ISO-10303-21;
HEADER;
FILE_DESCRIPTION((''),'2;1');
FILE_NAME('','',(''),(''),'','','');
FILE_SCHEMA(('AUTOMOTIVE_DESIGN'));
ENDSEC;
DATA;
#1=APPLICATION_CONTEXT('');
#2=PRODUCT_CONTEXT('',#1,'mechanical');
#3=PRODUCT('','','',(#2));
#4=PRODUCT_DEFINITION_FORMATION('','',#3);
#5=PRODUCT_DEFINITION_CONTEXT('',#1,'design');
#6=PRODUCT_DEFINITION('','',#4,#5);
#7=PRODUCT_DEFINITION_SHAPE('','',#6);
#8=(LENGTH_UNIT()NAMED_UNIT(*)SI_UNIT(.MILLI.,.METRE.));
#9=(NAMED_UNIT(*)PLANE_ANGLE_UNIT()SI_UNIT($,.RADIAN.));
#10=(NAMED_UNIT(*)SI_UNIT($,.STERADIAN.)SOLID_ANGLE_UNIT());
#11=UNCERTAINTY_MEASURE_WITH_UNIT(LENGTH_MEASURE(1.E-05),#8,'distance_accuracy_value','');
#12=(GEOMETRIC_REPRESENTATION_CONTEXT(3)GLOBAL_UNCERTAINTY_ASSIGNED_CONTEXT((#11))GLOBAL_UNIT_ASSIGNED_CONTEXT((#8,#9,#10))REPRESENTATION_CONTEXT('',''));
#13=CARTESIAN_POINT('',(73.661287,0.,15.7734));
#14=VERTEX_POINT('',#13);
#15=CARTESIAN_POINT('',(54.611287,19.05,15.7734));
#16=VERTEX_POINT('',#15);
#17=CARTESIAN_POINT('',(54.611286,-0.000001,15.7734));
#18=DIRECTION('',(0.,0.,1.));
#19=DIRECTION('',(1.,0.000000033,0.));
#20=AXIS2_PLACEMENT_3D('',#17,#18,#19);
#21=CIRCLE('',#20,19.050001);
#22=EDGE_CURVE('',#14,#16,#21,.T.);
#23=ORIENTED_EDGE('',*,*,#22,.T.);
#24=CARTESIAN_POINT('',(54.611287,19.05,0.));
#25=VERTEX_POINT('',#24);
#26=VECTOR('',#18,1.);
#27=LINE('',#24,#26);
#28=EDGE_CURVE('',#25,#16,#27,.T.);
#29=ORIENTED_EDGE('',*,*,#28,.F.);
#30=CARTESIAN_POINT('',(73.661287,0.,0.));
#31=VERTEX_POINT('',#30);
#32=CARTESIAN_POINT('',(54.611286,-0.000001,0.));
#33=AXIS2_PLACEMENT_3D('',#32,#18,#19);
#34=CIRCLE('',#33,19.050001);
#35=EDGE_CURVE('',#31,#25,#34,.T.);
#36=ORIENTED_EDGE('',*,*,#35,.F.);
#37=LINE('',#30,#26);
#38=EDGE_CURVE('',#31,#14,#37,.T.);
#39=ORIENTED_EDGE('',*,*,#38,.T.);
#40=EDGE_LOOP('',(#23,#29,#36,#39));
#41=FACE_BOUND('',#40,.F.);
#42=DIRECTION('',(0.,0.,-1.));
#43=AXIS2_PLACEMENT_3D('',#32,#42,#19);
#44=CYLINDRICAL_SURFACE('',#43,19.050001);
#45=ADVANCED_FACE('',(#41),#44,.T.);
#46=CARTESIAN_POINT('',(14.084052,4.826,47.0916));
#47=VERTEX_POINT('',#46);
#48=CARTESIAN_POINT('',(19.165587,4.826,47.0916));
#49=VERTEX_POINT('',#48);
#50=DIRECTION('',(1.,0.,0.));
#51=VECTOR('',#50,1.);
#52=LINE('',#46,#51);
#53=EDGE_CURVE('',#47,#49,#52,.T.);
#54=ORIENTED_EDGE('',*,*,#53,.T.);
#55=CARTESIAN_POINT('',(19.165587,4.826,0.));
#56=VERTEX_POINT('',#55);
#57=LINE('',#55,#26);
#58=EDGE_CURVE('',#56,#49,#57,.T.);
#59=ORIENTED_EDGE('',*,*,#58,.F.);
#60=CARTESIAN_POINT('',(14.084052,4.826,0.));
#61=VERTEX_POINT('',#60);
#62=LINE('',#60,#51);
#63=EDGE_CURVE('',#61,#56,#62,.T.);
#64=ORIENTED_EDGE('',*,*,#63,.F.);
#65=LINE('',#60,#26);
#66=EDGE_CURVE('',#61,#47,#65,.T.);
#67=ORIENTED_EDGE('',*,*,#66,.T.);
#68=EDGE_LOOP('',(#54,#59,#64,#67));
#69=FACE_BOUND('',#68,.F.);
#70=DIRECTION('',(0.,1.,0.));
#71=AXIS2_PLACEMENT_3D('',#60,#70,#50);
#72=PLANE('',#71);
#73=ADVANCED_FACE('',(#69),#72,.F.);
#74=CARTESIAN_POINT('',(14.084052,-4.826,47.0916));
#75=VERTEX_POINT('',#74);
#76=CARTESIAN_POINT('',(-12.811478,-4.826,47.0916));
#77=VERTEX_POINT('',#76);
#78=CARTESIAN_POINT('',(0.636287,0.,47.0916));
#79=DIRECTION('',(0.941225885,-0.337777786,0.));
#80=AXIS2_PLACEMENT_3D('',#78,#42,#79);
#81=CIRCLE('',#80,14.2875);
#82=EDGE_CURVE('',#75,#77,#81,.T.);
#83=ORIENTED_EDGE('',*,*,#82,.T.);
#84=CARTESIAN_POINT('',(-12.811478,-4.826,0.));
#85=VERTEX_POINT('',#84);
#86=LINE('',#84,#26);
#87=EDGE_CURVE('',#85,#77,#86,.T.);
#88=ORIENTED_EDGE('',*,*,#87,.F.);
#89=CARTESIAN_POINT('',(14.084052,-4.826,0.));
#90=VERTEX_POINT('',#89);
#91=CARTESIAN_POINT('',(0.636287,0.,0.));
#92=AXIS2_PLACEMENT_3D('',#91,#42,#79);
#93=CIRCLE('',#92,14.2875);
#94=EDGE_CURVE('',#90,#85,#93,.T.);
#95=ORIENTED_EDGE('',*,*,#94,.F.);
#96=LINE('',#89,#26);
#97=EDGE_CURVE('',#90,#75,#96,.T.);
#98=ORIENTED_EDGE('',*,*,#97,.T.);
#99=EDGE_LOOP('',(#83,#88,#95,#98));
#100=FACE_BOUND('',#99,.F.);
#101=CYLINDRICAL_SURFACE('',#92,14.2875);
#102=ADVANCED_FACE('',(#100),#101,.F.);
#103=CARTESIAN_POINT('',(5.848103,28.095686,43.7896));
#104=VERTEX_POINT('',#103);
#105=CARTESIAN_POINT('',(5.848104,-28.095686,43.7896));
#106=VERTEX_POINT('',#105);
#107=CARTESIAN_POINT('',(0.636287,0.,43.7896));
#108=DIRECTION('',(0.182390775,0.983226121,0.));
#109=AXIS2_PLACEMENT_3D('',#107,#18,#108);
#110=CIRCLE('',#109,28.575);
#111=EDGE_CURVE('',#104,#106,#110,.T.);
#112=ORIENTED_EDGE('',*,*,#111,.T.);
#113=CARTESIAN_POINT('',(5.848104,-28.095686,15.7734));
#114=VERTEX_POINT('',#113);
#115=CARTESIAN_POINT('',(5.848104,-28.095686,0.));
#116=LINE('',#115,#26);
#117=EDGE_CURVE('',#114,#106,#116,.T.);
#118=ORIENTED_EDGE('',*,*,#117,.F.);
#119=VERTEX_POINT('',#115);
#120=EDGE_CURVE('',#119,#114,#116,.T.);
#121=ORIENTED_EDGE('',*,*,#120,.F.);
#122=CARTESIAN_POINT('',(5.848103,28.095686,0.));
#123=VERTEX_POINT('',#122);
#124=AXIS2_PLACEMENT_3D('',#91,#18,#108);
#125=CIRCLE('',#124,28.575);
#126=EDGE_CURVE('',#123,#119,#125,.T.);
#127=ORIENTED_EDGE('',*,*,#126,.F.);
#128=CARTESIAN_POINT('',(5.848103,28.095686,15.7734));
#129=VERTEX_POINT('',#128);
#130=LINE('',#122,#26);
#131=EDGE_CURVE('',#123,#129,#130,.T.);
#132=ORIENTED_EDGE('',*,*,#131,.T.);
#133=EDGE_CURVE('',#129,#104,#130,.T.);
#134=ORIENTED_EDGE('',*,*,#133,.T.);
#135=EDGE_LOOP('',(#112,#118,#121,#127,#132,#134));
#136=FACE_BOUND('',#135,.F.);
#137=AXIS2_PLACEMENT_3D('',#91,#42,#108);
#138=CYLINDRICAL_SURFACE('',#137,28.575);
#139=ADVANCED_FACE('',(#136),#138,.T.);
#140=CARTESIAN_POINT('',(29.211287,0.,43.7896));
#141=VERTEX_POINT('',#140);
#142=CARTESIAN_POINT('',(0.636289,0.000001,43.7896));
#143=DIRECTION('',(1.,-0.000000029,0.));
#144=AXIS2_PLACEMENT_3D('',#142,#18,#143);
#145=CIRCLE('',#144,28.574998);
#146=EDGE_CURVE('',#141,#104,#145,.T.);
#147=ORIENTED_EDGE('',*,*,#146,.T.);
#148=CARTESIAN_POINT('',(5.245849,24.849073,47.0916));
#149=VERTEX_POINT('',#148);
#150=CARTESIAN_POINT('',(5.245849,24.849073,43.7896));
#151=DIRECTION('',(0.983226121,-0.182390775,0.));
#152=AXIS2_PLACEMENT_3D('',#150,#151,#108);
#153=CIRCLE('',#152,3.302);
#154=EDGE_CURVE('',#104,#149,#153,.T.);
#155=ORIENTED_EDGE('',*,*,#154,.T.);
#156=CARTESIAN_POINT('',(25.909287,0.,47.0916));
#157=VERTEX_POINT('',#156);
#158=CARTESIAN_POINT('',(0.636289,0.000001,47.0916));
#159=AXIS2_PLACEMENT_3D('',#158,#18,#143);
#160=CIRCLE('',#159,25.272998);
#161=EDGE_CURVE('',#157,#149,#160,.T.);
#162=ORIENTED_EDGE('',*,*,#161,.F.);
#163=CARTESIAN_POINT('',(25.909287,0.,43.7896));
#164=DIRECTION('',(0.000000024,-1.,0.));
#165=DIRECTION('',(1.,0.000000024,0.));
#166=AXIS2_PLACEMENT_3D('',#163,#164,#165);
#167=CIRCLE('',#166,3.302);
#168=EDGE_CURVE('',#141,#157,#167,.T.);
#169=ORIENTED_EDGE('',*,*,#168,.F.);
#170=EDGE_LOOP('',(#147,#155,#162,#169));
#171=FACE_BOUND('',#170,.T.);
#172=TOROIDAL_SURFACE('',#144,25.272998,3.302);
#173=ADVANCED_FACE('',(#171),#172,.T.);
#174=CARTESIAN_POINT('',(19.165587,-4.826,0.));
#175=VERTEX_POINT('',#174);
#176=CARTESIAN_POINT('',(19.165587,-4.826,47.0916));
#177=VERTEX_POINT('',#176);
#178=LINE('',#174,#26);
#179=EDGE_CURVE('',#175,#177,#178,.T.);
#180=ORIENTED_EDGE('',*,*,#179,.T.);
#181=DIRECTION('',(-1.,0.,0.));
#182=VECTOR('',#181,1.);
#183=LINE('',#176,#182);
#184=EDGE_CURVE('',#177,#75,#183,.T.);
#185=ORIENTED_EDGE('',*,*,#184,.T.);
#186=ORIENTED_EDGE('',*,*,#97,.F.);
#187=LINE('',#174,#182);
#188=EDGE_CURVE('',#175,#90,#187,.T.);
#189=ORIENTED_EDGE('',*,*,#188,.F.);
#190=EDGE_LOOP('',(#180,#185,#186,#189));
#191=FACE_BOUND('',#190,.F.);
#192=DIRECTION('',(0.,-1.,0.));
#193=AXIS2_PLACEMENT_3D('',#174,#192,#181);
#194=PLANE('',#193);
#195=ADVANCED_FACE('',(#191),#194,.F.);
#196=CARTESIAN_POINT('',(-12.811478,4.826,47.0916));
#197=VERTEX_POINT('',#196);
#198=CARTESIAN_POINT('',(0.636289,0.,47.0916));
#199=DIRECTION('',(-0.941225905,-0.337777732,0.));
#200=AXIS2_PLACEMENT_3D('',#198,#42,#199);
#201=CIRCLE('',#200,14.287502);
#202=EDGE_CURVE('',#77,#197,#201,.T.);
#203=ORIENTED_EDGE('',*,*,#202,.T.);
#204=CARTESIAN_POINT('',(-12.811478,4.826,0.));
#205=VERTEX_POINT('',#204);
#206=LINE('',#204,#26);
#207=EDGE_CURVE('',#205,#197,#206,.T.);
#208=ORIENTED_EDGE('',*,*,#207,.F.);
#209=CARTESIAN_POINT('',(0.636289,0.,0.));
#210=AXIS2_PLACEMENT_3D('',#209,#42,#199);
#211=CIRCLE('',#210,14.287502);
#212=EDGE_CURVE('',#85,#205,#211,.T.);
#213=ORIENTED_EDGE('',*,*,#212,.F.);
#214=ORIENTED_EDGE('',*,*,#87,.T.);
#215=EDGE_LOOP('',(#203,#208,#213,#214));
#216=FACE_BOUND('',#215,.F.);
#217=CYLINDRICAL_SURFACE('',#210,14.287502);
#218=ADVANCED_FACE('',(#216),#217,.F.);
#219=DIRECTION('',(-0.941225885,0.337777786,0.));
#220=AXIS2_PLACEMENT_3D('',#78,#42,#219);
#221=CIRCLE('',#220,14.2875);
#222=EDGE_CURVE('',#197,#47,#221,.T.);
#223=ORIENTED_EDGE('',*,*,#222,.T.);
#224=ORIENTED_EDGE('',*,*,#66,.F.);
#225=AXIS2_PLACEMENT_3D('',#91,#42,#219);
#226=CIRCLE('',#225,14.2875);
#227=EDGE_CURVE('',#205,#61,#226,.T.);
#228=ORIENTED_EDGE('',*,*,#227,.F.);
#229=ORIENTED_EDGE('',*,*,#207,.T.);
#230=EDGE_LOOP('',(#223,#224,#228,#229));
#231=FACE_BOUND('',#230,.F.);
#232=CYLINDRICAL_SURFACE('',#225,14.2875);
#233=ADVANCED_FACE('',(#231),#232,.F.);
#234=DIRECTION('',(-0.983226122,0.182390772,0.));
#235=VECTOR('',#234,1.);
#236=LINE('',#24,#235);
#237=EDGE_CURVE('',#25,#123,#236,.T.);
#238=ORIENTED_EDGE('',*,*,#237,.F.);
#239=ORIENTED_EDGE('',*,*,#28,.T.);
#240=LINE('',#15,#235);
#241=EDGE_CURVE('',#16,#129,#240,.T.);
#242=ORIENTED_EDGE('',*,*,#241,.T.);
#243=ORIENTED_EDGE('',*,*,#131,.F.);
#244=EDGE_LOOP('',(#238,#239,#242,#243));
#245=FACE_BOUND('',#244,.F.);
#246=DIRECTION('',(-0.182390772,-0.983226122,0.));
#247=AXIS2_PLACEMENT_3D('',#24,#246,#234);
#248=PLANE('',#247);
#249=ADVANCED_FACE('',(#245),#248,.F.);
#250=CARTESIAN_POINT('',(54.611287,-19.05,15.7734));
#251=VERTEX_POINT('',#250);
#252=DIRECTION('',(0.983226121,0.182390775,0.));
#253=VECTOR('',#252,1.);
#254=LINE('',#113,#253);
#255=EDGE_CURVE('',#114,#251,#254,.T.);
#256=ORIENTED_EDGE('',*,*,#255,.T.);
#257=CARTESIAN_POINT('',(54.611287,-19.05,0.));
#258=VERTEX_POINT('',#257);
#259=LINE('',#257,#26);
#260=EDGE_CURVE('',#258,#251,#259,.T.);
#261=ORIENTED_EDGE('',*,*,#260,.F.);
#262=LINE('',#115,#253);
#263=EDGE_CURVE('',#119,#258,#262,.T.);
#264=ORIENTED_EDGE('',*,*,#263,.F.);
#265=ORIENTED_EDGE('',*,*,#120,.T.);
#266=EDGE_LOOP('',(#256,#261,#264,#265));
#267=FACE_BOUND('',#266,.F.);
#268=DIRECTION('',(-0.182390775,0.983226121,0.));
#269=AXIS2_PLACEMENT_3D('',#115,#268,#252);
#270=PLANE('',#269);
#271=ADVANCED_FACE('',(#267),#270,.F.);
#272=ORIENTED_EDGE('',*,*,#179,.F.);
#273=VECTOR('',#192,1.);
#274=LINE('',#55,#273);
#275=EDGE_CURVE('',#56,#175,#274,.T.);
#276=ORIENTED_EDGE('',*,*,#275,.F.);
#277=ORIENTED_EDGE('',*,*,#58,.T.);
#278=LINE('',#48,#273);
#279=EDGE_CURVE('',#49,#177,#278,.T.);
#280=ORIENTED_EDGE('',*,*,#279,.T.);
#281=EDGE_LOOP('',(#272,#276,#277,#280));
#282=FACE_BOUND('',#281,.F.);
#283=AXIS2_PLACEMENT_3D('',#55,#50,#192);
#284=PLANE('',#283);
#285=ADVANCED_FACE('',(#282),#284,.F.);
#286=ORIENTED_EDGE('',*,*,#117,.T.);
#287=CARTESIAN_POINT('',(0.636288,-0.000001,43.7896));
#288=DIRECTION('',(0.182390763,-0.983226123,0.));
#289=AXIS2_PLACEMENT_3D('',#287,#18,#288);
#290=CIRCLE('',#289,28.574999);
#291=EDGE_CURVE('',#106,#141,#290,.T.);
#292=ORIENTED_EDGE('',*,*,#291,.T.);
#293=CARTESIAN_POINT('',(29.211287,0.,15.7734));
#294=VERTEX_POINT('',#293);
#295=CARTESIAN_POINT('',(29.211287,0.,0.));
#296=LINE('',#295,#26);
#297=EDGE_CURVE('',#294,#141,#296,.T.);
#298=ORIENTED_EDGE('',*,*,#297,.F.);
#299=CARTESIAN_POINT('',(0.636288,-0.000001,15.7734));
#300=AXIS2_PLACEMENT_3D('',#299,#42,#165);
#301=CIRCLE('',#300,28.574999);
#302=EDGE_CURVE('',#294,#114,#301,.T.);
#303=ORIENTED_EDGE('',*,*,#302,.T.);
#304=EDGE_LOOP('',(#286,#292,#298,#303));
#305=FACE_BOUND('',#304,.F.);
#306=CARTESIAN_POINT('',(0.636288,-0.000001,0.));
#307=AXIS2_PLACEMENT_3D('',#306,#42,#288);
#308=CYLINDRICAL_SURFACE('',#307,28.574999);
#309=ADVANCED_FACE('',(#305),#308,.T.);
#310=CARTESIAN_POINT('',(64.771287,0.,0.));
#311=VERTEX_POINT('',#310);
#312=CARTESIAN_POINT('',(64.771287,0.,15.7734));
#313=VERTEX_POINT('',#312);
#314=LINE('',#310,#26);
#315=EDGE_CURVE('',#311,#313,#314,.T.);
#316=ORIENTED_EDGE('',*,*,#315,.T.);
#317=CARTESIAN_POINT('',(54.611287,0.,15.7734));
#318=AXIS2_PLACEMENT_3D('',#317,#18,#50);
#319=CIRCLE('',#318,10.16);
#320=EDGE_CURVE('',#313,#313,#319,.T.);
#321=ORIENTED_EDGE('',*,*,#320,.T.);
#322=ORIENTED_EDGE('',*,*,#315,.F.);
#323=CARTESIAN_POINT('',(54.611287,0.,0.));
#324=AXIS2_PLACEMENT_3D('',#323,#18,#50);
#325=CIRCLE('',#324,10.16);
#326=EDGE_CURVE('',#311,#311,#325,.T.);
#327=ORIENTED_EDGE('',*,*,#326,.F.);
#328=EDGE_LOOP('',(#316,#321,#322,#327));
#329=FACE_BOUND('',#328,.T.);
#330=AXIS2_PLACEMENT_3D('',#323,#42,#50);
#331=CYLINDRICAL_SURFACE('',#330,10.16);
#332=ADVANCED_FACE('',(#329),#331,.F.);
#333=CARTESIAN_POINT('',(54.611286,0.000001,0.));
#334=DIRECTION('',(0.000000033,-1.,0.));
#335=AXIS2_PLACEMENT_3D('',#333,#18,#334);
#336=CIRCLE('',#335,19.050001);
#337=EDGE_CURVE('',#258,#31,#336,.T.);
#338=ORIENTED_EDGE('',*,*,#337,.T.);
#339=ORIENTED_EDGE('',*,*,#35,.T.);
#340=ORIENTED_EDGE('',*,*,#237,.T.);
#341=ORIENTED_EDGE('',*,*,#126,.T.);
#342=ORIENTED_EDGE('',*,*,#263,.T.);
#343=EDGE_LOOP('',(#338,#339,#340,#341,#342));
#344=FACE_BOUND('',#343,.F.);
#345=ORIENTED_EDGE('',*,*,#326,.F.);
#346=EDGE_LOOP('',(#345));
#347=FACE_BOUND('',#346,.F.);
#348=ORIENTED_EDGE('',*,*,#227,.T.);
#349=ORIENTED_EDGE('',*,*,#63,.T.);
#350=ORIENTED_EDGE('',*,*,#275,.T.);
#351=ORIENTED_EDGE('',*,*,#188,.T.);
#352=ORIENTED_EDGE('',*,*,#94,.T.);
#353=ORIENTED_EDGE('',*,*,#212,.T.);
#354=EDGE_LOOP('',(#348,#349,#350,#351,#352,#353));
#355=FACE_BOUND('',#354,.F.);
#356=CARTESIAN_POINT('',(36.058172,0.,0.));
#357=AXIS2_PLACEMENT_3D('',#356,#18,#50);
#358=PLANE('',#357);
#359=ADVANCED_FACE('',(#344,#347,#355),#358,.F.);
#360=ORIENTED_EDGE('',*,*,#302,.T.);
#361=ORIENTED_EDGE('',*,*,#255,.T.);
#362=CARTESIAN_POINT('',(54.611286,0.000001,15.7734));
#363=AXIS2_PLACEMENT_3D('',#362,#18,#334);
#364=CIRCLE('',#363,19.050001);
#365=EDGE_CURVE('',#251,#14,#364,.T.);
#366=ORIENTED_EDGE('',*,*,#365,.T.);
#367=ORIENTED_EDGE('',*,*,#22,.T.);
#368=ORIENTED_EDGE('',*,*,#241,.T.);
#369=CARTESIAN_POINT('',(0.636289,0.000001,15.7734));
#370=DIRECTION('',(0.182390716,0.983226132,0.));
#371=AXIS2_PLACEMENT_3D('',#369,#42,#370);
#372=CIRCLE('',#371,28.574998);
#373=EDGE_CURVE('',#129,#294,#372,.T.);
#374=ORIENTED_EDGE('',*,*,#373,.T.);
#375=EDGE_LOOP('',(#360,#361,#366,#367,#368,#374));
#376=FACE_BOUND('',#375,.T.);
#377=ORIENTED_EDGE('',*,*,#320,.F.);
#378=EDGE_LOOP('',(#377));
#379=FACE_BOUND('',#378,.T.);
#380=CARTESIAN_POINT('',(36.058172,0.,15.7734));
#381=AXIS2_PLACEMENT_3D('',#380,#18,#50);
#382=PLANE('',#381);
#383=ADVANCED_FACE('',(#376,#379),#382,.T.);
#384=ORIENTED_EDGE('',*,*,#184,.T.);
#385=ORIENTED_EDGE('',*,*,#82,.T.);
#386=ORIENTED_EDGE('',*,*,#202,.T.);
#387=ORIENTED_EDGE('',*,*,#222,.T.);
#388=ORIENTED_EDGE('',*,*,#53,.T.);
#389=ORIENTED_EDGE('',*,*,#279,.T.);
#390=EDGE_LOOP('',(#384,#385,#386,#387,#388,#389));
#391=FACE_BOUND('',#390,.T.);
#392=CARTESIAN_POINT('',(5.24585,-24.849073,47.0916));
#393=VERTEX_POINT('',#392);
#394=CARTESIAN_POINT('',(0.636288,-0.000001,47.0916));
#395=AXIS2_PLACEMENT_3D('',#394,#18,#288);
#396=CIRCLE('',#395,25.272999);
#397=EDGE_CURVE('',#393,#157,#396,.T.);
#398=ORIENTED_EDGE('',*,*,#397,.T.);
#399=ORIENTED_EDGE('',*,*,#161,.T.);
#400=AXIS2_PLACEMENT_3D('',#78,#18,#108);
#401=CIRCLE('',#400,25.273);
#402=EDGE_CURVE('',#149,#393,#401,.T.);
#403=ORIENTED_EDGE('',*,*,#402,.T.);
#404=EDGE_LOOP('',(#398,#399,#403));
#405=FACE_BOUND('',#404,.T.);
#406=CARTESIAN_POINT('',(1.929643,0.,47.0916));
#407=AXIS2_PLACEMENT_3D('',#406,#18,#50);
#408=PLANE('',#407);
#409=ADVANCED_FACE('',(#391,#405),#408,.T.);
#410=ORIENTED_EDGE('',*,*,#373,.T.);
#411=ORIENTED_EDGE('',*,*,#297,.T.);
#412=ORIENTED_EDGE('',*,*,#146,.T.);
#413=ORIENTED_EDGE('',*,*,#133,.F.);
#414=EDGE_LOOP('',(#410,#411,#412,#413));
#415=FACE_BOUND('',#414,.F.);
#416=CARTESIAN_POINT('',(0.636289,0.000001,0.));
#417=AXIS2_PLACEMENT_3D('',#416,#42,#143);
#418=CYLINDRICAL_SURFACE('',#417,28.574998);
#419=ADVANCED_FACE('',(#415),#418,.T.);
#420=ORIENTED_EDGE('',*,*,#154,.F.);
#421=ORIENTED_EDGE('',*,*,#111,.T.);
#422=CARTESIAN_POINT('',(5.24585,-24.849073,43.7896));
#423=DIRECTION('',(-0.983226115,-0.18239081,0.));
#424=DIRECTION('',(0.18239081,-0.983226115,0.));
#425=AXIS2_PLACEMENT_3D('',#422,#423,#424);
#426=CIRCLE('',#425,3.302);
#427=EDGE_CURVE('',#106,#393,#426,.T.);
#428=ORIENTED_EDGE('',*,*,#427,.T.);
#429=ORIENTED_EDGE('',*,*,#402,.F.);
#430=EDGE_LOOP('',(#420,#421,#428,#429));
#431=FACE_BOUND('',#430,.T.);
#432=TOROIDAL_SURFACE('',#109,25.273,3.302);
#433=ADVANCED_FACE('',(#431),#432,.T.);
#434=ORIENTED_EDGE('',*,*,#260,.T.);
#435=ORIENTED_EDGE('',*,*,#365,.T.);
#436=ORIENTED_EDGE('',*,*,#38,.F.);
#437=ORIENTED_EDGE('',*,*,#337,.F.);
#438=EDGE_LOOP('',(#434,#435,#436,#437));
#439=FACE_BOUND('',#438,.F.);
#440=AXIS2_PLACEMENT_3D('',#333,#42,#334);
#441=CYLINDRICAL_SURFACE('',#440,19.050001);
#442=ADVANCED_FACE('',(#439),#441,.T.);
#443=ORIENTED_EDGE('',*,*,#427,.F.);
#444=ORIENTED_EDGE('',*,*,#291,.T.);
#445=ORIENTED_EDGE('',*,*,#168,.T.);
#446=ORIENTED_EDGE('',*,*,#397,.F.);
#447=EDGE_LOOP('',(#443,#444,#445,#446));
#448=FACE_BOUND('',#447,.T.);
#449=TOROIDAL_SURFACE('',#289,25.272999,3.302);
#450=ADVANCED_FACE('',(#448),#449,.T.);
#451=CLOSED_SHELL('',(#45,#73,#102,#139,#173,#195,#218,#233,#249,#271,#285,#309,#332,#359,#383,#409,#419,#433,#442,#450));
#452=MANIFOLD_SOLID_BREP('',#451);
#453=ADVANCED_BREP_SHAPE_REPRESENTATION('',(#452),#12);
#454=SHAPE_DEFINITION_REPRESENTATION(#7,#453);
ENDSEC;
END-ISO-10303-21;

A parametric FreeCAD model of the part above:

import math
import FreeCAD as App
import Part
import Sketcher
from FreeCAD import Vector
Q = App.Units.Quantity


def edges_at(feature, points):
    """Names of the edges that pass closest to the given points."""
    edges = feature.Shape.Edges
    near = lambda p: min(range(len(edges)), key=lambda i: edges[i].distToShape(Part.Vertex(*p))[0])
    return sorted({f"Edge{near(p) + 1}" for p in points})

doc = App.newDocument("Part")
body = doc.addObject("PartDesign::Body", "Body")

sketch1 = body.newObject("Sketcher::SketchObject", "Sketch")
sketch1.AttachmentSupport = (doc.getObject("XY_Plane"), [""])
sketch1.MapMode = "FlatFace"
sketch1.addGeometry([
    Part.ArcOfCircle(Part.Circle(Vector(1, 0, 0), Vector(0, 0, 1), 29), math.radians(-79), math.radians(0)),
    Part.ArcOfCircle(Part.Circle(Vector(1, 0, 0), Vector(0, 0, 1), 29), math.radians(0), math.radians(79)),
    Part.ArcOfCircle(Part.Circle(Vector(1, 0, 0), Vector(0, 0, 1), 29), math.radians(79), math.radians(281)),
    Part.ArcOfCircle(Part.Circle(Vector(1, 0, 0), Vector(0, 0, 1), 14), math.radians(-160), math.radians(-20)),
    Part.ArcOfCircle(Part.Circle(Vector(1, 0, 0), Vector(0, 0, 1), 14), math.radians(160), math.radians(200)),
    Part.ArcOfCircle(Part.Circle(Vector(1, 0, 0), Vector(0, 0, 1), 14), math.radians(20), math.radians(160)),
    Part.LineSegment(Vector(14, 5, 0), Vector(19, 5, 0)),
    Part.LineSegment(Vector(19, 5, 0), Vector(19, -5, 0)),
    Part.LineSegment(Vector(19, -5, 0), Vector(14, -5, 0)),
], False)
sketch1.addConstraint([
    Sketcher.Constraint("Tangent", 0, 2, 1, 1),
    Sketcher.Constraint("Tangent", 1, 2, 2, 1),
    Sketcher.Constraint("Tangent", 2, 2, 0, 1),
    Sketcher.Constraint("Tangent", 3, 1, 4, 2),
    Sketcher.Constraint("Tangent", 4, 1, 5, 2),
    Sketcher.Constraint("Coincident", 5, 1, 6, 1),
    Sketcher.Constraint("Coincident", 6, 2, 7, 1),
    Sketcher.Constraint("Coincident", 7, 2, 8, 1),
    Sketcher.Constraint("Coincident", 8, 2, 3, 2),
    Sketcher.Constraint("Horizontal", 6),
    Sketcher.Constraint("Vertical", 7),
    Sketcher.Constraint("Horizontal", 8),
    Sketcher.Constraint("Coincident", 3, 3, 0, 3),
    Sketcher.Constraint("Coincident", 5, 3, 0, 3),
    Sketcher.Constraint("Symmetric", 1, 2, 2, 2, -1),
    Sketcher.Constraint("PointOnObject", 0, 2, -1),
    Sketcher.Constraint("Horizontal", 4, 1, 5, 1),
    Sketcher.Constraint("Horizontal", 3, 1, 7, 2),
    Sketcher.Constraint("Vertical", 3, 1, 4, 1),
    Sketcher.Constraint("Radius", 0, Q("1.125 in")),
    Sketcher.Constraint("Radius", 3, Q("0.5625 in")),
    Sketcher.Constraint("DistanceY", 7, 2, 7, 1, Q("0.38 in")),
    Sketcher.Constraint("DistanceX", 6, 2, 0, 2, Q("0.3955 in")),
    Sketcher.Constraint("DistanceX", -1, 1, 0, 3, 0.636288),
    Sketcher.Constraint("DistanceX", -1, 1, 1, 2, 5.848103),
])
pad1 = body.newObject("PartDesign::Pad", "Pad")
pad1.Profile = sketch1
pad1.Length = Q("1.854 in")

sketch2 = body.newObject("Sketcher::SketchObject", "Sketch001")
sketch2.AttachmentSupport = (doc.getObject("XY_Plane"), [""])
sketch2.MapMode = "FlatFace"
sketch2.addGeometry([
    Part.ArcOfCircle(Part.Circle(Vector(1, 0, 0), Vector(0, 0, 1), 29), math.radians(0), math.radians(79)),
    Part.ArcOfCircle(Part.Circle(Vector(1, 0, 0), Vector(0, 0, 1), 29), math.radians(-79), math.radians(0)),
    Part.LineSegment(Vector(6, -28, 0), Vector(55, -19, 0)),
    Part.ArcOfCircle(Part.Circle(Vector(55, 0, 0), Vector(0, 0, 1), 19), math.radians(-90), math.radians(0)),
    Part.ArcOfCircle(Part.Circle(Vector(55, 0, 0), Vector(0, 0, 1), 19), math.radians(0), math.radians(90)),
    Part.LineSegment(Vector(55, 19, 0), Vector(6, 28, 0)),
    Part.Circle(Vector(55, 0, 0), Vector(0, 0, 1), 10),
], False)
sketch2.addConstraint([
    Sketcher.Constraint("Tangent", 0, 1, 1, 2),
    Sketcher.Constraint("Tangent", 1, 1, 2, 1),
    Sketcher.Constraint("Coincident", 2, 2, 3, 1),
    Sketcher.Constraint("Tangent", 3, 2, 4, 1),
    Sketcher.Constraint("Coincident", 4, 2, 5, 1),
    Sketcher.Constraint("Tangent", 5, 2, 0, 2),
    Sketcher.Constraint("Coincident", 6, 3, 3, 3),
    Sketcher.Constraint("Equal", 0, 1),
    Sketcher.Constraint("Equal", 3, 4),
    Sketcher.Constraint("Symmetric", 2, 2, 4, 2, -1),
    Sketcher.Constraint("PointOnObject", 0, 3, -1),
    Sketcher.Constraint("PointOnObject", 0, 1, -1),
    Sketcher.Constraint("PointOnObject", 3, 2, -1),
    Sketcher.Constraint("Vertical", 6, 3, 2, 2),
    Sketcher.Constraint("Diameter", 6, Q("0.8 in")),
    Sketcher.Constraint("Radius", 3, Q("0.75 in")),
    Sketcher.Constraint("Radius", 0, Q("1.1249999 in")),
    Sketcher.Constraint("DistanceX", 0, 1, 3, 3, Q("1 in")),
    Sketcher.Constraint("DistanceX", -1, 1, 0, 3, 0.636289),
])
pad2 = body.newObject("PartDesign::Pad", "Pad001")
pad2.Profile = sketch2
pad2.Length = Q("0.621 in")
doc.recompute()

fillet = body.newObject("PartDesign::Fillet", "Fillet")
fillet.Base = (pad2, edges_at(pad2, [(-27.939, 0, 47.092)]))
fillet.Radius = Q("0.13 in")

doc.recompute()
